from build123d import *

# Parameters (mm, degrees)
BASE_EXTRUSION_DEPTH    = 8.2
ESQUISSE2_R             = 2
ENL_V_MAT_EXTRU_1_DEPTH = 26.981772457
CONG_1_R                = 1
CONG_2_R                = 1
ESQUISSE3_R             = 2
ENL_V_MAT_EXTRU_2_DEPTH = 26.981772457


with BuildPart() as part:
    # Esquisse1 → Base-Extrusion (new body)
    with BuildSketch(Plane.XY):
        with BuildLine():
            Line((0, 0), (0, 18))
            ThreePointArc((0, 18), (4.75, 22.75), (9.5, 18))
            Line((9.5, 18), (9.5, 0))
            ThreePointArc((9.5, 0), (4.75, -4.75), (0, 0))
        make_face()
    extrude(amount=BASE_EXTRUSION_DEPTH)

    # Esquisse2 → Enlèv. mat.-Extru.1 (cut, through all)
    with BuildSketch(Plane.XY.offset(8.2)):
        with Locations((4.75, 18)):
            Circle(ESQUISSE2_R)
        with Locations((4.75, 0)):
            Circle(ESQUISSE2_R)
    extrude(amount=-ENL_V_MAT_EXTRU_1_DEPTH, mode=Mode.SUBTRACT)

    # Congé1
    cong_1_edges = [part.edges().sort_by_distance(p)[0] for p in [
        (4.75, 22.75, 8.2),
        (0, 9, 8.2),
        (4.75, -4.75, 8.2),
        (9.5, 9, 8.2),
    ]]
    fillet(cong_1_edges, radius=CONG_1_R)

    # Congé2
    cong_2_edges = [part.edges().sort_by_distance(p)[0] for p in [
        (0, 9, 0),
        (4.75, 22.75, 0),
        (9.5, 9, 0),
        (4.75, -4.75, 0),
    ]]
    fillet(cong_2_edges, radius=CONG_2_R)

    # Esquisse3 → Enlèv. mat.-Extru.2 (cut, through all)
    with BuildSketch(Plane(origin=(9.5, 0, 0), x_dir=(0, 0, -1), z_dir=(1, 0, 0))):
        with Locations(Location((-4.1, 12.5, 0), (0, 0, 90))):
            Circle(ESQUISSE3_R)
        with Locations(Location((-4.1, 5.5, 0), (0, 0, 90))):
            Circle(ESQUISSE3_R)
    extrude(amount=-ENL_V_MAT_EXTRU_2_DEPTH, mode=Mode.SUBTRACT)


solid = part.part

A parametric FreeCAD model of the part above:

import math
import FreeCAD as App
import Part
import Sketcher
from FreeCAD import Vector


def edges_at(feature, points):
    """Names of the edges that pass closest to the given points."""
    edges = feature.Shape.Edges
    near = lambda p: min(range(len(edges)), key=lambda i: edges[i].distToShape(Part.Vertex(*p))[0])
    return sorted({f"Edge{near(p) + 1}" for p in points})

doc = App.newDocument("Part")
params = doc.addObject("Spreadsheet::Sheet", "Params")
for row, (alias, value) in enumerate([
    ("sketch1_height", "18 mm"),
    ("sketch1_radius", "4.75 mm"),
    ("pad1_length", "8.2 mm"),
    ("sketch2_diameter", "4 mm"),
    ("fillet_radius", "1 mm"),
    ("fillet2_radius", "1 mm"),
    ("sketch3_diameter", "4 mm"),
], start=1):
    params.set(f"A{row}", alias)
    params.set(f"B{row}", "=" + value)
    params.setAlias(f"B{row}", alias)

body = doc.addObject("PartDesign::Body", "Body")

# Sketch on XY plane
sketch1 = body.newObject("Sketcher::SketchObject", "Sketch")
sketch1.AttachmentSupport = (doc.getObject("XY_Plane"), [""])
sketch1.MapMode = "FlatFace"
sketch1.addGeometry([
    Part.LineSegment(Vector(0, 18, 0), Vector(0, 0, 0)),
    Part.ArcOfCircle(Part.Circle(Vector(4.8, 0, 0), Vector(0, 0, 1), 4.8), math.radians(180), math.radians(360)),
    Part.LineSegment(Vector(9.5, 0, 0), Vector(9.5, 18, 0)),
    Part.ArcOfCircle(Part.Circle(Vector(4.8, 18, 0), Vector(0, 0, 1), 4.8), math.radians(0), math.radians(180)),
], False)
sketch1.addConstraint([
    Sketcher.Constraint("Tangent", 0, 2, 1, 1),
    Sketcher.Constraint("Tangent", 1, 2, 2, 1),
    Sketcher.Constraint("Tangent", 2, 2, 3, 1),
    Sketcher.Constraint("Tangent", 3, 2, 0, 1),
    Sketcher.Constraint("Vertical", 0),
    Sketcher.Constraint("Vertical", 2),
    Sketcher.Constraint("Coincident", 0, 2, -1, 1),
    Sketcher.Constraint("DistanceY", 0, 2, 0, 1, 18.0),
    Sketcher.Constraint("Radius", 1, 4.75),
])
sketch1.setExpression("Constraints[7]", "Params.sketch1_height")
sketch1.setExpression("Constraints[8]", "Params.sketch1_radius")
pad1 = body.newObject("PartDesign::Pad", "Pad")
pad1.Profile = sketch1
pad1.setExpression("Length", "Params.pad1_length")

# Sketch on XY plane
sketch2 = body.newObject("Sketcher::SketchObject", "Sketch001")
sketch2.AttachmentSupport = (doc.getObject("XY_Plane"), [""])
sketch2.MapMode = "FlatFace"
sketch2.AttachmentOffset = App.Placement(Vector(0, 0, 8.2), App.Rotation())
sketch2.addGeometry([
    Part.Circle(Vector(4.8, 18, 0), Vector(0, 0, 1), 2),
    Part.Circle(Vector(4.8, 0, 0), Vector(0, 0, 1), 2),
], False)
sketch2.addConstraint([
    Sketcher.Constraint("Equal", 0, 1),
    Sketcher.Constraint("PointOnObject", 1, 3, -1),
    Sketcher.Constraint("Vertical", 0, 3, 1, 3),
    Sketcher.Constraint("Diameter", 0, 4.0),
    Sketcher.Constraint("DistanceY", -1, 1, 0, 3, 18.0),
    Sketcher.Constraint("DistanceX", -1, 1, 0, 3, 4.75),
])
sketch2.setExpression("Constraints[3]", "Params.sketch2_diameter")
pocket1 = body.newObject("PartDesign::Pocket", "Pocket")
pocket1.Profile = sketch2
pocket1.Type = "ThroughAll"
doc.recompute()

fillet = body.newObject("PartDesign::Fillet", "Fillet")
fillet.Base = (pocket1, edges_at(pocket1, [
    (4.75, 22.75, 8.2),
    (0, 9, 8.2),
    (4.75, -4.75, 8.2),
    (9.5, 9, 8.2),
]))
fillet.setExpression("Radius", "Params.fillet_radius")
doc.recompute()

fillet2 = body.newObject("PartDesign::Fillet", "Fillet001")
fillet2.Base = (fillet, edges_at(fillet, [
    (0, 9, 0),
    (4.75, 22.75, 0),
    (9.5, 9, 0),
    (4.75, -4.75, 0),
]))
fillet2.setExpression("Radius", "Params.fillet2_radius")

# Sketch on YZ plane
sketch3 = body.newObject("Sketcher::SketchObject", "Sketch002")
sketch3.AttachmentSupport = (doc.getObject("YZ_Plane"), [""])
sketch3.MapMode = "FlatFace"
sketch3.AttachmentOffset = App.Placement(Vector(0, 0, 9.5), App.Rotation())
sketch3.addGeometry([
    Part.Circle(Vector(12.5, 4.1, 0), Vector(0, 0, 1), 2),
    Part.Circle(Vector(5.5, 4.1, 0), Vector(0, 0, 1), 2),
], False)
sketch3.addConstraint([
    Sketcher.Constraint("Equal", 0, 1),
    Sketcher.Constraint("Horizontal", 0, 3, 1, 3),
    Sketcher.Constraint("Diameter", 0, 4.0),
    Sketcher.Constraint("DistanceX", 1, 3, 0, 3, 7.0),
    Sketcher.Constraint("DistanceX", -1, 1, 0, 3, 12.5),
    Sketcher.Constraint("DistanceY", -1, 1, 0, 3, 4.1),
])
sketch3.setExpression("Constraints[2]", "Params.sketch3_diameter")
pocket2 = body.newObject("PartDesign::Pocket", "Pocket001")
pocket2.Profile = sketch3
pocket2.Type = "ThroughAll"

doc.recompute()
